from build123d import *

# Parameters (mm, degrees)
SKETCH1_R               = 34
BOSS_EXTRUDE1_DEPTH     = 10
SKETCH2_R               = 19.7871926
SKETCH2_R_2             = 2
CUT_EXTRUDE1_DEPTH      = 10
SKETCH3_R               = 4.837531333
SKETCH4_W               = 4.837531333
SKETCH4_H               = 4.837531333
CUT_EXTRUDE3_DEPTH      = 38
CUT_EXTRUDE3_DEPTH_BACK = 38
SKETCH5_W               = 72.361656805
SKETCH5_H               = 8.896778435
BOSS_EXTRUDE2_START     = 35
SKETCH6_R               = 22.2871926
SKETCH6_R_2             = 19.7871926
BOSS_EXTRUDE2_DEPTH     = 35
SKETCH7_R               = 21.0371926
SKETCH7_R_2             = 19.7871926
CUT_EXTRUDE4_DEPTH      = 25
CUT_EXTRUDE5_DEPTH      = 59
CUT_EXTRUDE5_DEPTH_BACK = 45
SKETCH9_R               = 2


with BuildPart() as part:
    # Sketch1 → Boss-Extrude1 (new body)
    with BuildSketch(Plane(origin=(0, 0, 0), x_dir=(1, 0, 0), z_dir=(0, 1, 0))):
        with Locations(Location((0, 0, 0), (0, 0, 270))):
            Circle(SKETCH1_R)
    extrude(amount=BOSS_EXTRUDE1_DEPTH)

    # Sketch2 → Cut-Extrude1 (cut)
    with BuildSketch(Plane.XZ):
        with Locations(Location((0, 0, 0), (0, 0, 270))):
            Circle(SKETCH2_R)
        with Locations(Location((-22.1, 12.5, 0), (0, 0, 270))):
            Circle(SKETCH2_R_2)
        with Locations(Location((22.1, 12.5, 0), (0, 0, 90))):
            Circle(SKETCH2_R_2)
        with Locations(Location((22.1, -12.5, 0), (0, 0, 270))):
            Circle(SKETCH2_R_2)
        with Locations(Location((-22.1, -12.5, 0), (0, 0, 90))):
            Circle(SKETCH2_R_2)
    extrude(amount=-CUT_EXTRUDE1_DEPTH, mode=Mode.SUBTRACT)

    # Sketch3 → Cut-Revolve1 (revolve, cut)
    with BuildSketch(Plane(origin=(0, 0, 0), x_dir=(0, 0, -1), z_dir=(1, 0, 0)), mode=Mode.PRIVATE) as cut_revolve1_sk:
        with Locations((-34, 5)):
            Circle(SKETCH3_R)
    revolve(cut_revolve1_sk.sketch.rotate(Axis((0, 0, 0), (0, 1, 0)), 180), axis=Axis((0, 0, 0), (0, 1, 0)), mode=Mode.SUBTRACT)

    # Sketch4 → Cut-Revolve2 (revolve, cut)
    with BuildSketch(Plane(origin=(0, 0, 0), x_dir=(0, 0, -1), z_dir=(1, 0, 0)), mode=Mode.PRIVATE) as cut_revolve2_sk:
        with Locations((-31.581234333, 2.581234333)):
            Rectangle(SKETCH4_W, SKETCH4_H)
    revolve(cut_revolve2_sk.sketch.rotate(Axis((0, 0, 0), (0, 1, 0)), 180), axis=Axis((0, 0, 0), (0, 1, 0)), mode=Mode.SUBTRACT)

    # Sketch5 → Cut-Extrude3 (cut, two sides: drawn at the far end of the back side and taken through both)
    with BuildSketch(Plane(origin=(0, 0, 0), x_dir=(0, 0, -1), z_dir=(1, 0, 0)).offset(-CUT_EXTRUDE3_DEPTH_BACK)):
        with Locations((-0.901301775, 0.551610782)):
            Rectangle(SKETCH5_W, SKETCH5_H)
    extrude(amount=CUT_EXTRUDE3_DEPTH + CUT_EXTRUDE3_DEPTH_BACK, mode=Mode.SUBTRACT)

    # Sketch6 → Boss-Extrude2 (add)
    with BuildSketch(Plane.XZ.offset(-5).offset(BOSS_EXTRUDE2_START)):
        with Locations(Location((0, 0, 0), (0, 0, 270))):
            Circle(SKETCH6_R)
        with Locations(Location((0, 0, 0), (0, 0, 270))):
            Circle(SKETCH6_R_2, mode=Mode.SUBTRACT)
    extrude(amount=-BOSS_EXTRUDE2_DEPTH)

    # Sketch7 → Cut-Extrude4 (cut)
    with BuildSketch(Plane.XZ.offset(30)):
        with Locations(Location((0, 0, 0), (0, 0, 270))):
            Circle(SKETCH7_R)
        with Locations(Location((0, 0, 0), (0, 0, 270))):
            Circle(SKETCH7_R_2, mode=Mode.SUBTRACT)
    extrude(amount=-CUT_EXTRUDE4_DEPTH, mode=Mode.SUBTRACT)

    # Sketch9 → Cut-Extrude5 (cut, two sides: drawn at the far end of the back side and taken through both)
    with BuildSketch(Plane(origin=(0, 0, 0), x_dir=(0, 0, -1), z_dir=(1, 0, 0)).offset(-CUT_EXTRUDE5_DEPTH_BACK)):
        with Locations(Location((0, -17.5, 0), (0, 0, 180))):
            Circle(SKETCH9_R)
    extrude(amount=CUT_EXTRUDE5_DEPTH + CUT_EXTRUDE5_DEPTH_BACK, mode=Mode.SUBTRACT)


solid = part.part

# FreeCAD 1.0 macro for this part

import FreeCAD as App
import Part
import Sketcher
from FreeCAD import Vector


def add_polygon(sketch, points):
    """Adds a closed chain of lines whose ends are joined by coincident constraints."""
    first, n = sketch.GeometryCount, len(points)
    for a, b in zip(points, points[1:] + points[:1]):
        sketch.addGeometry(Part.LineSegment(App.Vector(*a, 0), App.Vector(*b, 0)), False)
    for i in range(n):
        sketch.addConstraint(Sketcher.Constraint("Coincident", first + i, 2, first + (i + 1) % n, 1))

doc = App.newDocument("Part")
body = doc.addObject("PartDesign::Body", "Body")

sketch1 = body.newObject("Sketcher::SketchObject", "Sketch")
sketch1.AttachmentSupport = (doc.getObject("XZ_Plane"), [""])
sketch1.MapMode = "FlatFace"
sketch1.addGeometry(Part.Circle(Vector(0, 0, 0), Vector(0, 0, 1), 34), False)
sketch1.addConstraint(Sketcher.Constraint("Coincident", 0, 3, -1, 1))
sketch1.addConstraint(Sketcher.Constraint("Diameter", 0, 68.0))
pad1 = body.newObject("PartDesign::Pad", "Pad")
pad1.Profile = sketch1
pad1.Length = 10
pad1.Reversed = True

sketch2 = body.newObject("Sketcher::SketchObject", "Sketch001")
sketch2.AttachmentSupport = (doc.getObject("XZ_Plane"), [""])
sketch2.MapMode = "FlatFace"
sketch2.addGeometry(Part.Circle(Vector(0, 0, 0), Vector(0, 0, 1), 19.787193), False)
sketch2.addGeometry(Part.Circle(Vector(-22.1, 12.5, 0), Vector(0, 0, 1), 2), False)
sketch2.addGeometry(Part.Circle(Vector(22.1, 12.5, 0), Vector(0, 0, 1), 2), False)
sketch2.addGeometry(Part.Circle(Vector(22.1, -12.5, 0), Vector(0, 0, 1), 2), False)
sketch2.addGeometry(Part.Circle(Vector(-22.1, -12.5, 0), Vector(0, 0, 1), 2), False)
sketch2.addConstraint(Sketcher.Constraint("Coincident", 0, 3, -1, 1))
sketch2.addConstraint(Sketcher.Constraint("Equal", 1, 2))
sketch2.addConstraint(Sketcher.Constraint("Equal", 2, 3))
sketch2.addConstraint(Sketcher.Constraint("Equal", 3, 4))
sketch2.addConstraint(Sketcher.Constraint("Symmetric", 1, 3, 3, 3, -1, 1))
sketch2.addConstraint(Sketcher.Constraint("Symmetric", 2, 3, 4, 3, -1, 1))
sketch2.addConstraint(Sketcher.Constraint("Symmetric", 1, 3, 2, 3, -2))
sketch2.addConstraint(Sketcher.Constraint("Diameter", 1, 4.0))
sketch2.addConstraint(Sketcher.Constraint("DistanceY", 3, 3, 2, 3, 25.0))
sketch2.addConstraint(Sketcher.Constraint("DistanceX", 1, 3, -1, 1, 22.1))
sketch2.addConstraint(Sketcher.Constraint("Diameter", 0, 39.574385))
pocket1 = body.newObject("PartDesign::Pocket", "Pocket")
pocket1.Profile = sketch2
pocket1.Length = 10

sketch3 = body.newObject("Sketcher::SketchObject", "Sketch002")
sketch3.AttachmentSupport = (doc.getObject("YZ_Plane"), [""])
sketch3.MapMode = "FlatFace"
sketch3.addGeometry(Part.Circle(Vector(5, 34, 0), Vector(0, 0, 1), 4.837531), False)
sketch3.addConstraint(Sketcher.Constraint("DistanceX", -1, 1, 0, 3, 5.0))
sketch3.addConstraint(Sketcher.Constraint("DistanceY", -1, 1, 0, 3, 34.0))
sketch3.addConstraint(Sketcher.Constraint("Diameter", 0, 9.675063))
groove = body.newObject("PartDesign::Groove", "Groove")
groove.Profile = sketch3
groove.ReferenceAxis = (sketch3, ["H_Axis"])
groove.Angle = 360

sketch4 = body.newObject("Sketcher::SketchObject", "Sketch003")
sketch4.AttachmentSupport = (doc.getObject("YZ_Plane"), [""])
sketch4.MapMode = "FlatFace"
add_polygon(sketch4, [(5, 34), (0.162469, 34), (0.162469, 29.162469), (5, 29.162469)])
sketch4.addConstraint(Sketcher.Constraint("Horizontal", 0))
sketch4.addConstraint(Sketcher.Constraint("Vertical", 1))
sketch4.addConstraint(Sketcher.Constraint("Horizontal", 2))
sketch4.addConstraint(Sketcher.Constraint("Vertical", 3))
sketch4.addConstraint(Sketcher.Constraint("Equal", 2, 1))
sketch4.addConstraint(Sketcher.Constraint("DistanceY", -1, 1, 0, 2, 34.0))
sketch4.addConstraint(Sketcher.Constraint("DistanceX", -1, 1, 2, 2, 5.0))
sketch4.addConstraint(Sketcher.Constraint("DistanceX", 0, 2, 0, 1, 4.837531))
groove2 = body.newObject("PartDesign::Groove", "Groove001")
groove2.Profile = sketch4
groove2.ReferenceAxis = (sketch4, ["H_Axis"])
groove2.Angle = 360

sketch5 = body.newObject("Sketcher::SketchObject", "Sketch004")
sketch5.AttachmentSupport = (doc.getObject("YZ_Plane"), [""])
sketch5.MapMode = "FlatFace"
add_polygon(sketch5, [(5, 37.08213), (-3.896778, 37.08213), (-3.896778, -35.279527), (5, -35.279527)])
sketch5.addConstraint(Sketcher.Constraint("Horizontal", 0))
sketch5.addConstraint(Sketcher.Constraint("Vertical", 1))
sketch5.addConstraint(Sketcher.Constraint("Horizontal", 2))
sketch5.addConstraint(Sketcher.Constraint("Vertical", 3))
sketch5.addConstraint(Sketcher.Constraint("DistanceX", -1, 1, 2, 2, 5.0))
sketch5.addConstraint(Sketcher.Constraint("DistanceX", 0, 2, 0, 1, 8.896778))
sketch5.addConstraint(Sketcher.Constraint("DistanceY", 1, 2, 1, 1, 72.361657))
sketch5.addConstraint(Sketcher.Constraint("DistanceY", -1, 1, 0, 2, 37.08213))
pocket2 = body.newObject("PartDesign::Pocket", "Pocket001")
pocket2.Profile = sketch5
pocket2.Type = "ThroughAll"
pocket2.Midplane = True

sketch6 = body.newObject("Sketcher::SketchObject", "Sketch005")
sketch6.AttachmentSupport = (doc.getObject("XZ_Plane"), [""])
sketch6.MapMode = "FlatFace"
sketch6.AttachmentOffset = App.Placement(Vector(0, 0, 30), App.Rotation())
sketch6.addGeometry(Part.Circle(Vector(0, 0, 0), Vector(0, 0, 1), 22.287193), False)
sketch6.addGeometry(Part.Circle(Vector(0, 0, 0), Vector(0, 0, 1), 19.787193), False)
sketch6.addConstraint(Sketcher.Constraint("Coincident", 0, 3, -1, 1))
sketch6.addConstraint(Sketcher.Constraint("Coincident", 1, 3, -1, 1))
sketch6.addConstraint(Sketcher.Constraint("Diameter", 0, 44.574385))
sketch6.addConstraint(Sketcher.Constraint("Diameter", 1, 39.574385))
pad2 = body.newObject("PartDesign::Pad", "Pad001")
pad2.Profile = sketch6
pad2.Length = 35
pad2.Reversed = True

sketch7 = body.newObject("Sketcher::SketchObject", "Sketch006")
sketch7.AttachmentSupport = (doc.getObject("XZ_Plane"), [""])
sketch7.MapMode = "FlatFace"
sketch7.AttachmentOffset = App.Placement(Vector(0, 0, 30), App.Rotation())
sketch7.addGeometry(Part.Circle(Vector(0, 0, 0), Vector(0, 0, 1), 21.037193), False)
sketch7.addGeometry(Part.Circle(Vector(0, 0, 0), Vector(0, 0, 1), 19.787193), False)
sketch7.addConstraint(Sketcher.Constraint("Coincident", 0, 3, -1, 1))
sketch7.addConstraint(Sketcher.Constraint("Coincident", 1, 3, -1, 1))
sketch7.addConstraint(Sketcher.Constraint("Diameter", 0, 42.074385))
sketch7.addConstraint(Sketcher.Constraint("Diameter", 1, 39.574385))
pocket3 = body.newObject("PartDesign::Pocket", "Pocket002")
pocket3.Profile = sketch7
pocket3.Length = 25

sketch8 = body.newObject("Sketcher::SketchObject", "Sketch007")
sketch8.AttachmentSupport = (doc.getObject("YZ_Plane"), [""])
sketch8.MapMode = "FlatFace"
sketch8.addGeometry(Part.Circle(Vector(-17.5, 0, 0), Vector(0, 0, 1), 2), False)
sketch8.addConstraint(Sketcher.Constraint("PointOnObject", 0, 3, -1))
sketch8.addConstraint(Sketcher.Constraint("Diameter", 0, 4.0))
sketch8.addConstraint(Sketcher.Constraint("DistanceX", 0, 3, -1, 1, 17.5))
pocket4 = body.newObject("PartDesign::Pocket", "Pocket003")
pocket4.Profile = sketch8
pocket4.Type = "ThroughAll"
pocket4.Midplane = True

doc.recompute()
